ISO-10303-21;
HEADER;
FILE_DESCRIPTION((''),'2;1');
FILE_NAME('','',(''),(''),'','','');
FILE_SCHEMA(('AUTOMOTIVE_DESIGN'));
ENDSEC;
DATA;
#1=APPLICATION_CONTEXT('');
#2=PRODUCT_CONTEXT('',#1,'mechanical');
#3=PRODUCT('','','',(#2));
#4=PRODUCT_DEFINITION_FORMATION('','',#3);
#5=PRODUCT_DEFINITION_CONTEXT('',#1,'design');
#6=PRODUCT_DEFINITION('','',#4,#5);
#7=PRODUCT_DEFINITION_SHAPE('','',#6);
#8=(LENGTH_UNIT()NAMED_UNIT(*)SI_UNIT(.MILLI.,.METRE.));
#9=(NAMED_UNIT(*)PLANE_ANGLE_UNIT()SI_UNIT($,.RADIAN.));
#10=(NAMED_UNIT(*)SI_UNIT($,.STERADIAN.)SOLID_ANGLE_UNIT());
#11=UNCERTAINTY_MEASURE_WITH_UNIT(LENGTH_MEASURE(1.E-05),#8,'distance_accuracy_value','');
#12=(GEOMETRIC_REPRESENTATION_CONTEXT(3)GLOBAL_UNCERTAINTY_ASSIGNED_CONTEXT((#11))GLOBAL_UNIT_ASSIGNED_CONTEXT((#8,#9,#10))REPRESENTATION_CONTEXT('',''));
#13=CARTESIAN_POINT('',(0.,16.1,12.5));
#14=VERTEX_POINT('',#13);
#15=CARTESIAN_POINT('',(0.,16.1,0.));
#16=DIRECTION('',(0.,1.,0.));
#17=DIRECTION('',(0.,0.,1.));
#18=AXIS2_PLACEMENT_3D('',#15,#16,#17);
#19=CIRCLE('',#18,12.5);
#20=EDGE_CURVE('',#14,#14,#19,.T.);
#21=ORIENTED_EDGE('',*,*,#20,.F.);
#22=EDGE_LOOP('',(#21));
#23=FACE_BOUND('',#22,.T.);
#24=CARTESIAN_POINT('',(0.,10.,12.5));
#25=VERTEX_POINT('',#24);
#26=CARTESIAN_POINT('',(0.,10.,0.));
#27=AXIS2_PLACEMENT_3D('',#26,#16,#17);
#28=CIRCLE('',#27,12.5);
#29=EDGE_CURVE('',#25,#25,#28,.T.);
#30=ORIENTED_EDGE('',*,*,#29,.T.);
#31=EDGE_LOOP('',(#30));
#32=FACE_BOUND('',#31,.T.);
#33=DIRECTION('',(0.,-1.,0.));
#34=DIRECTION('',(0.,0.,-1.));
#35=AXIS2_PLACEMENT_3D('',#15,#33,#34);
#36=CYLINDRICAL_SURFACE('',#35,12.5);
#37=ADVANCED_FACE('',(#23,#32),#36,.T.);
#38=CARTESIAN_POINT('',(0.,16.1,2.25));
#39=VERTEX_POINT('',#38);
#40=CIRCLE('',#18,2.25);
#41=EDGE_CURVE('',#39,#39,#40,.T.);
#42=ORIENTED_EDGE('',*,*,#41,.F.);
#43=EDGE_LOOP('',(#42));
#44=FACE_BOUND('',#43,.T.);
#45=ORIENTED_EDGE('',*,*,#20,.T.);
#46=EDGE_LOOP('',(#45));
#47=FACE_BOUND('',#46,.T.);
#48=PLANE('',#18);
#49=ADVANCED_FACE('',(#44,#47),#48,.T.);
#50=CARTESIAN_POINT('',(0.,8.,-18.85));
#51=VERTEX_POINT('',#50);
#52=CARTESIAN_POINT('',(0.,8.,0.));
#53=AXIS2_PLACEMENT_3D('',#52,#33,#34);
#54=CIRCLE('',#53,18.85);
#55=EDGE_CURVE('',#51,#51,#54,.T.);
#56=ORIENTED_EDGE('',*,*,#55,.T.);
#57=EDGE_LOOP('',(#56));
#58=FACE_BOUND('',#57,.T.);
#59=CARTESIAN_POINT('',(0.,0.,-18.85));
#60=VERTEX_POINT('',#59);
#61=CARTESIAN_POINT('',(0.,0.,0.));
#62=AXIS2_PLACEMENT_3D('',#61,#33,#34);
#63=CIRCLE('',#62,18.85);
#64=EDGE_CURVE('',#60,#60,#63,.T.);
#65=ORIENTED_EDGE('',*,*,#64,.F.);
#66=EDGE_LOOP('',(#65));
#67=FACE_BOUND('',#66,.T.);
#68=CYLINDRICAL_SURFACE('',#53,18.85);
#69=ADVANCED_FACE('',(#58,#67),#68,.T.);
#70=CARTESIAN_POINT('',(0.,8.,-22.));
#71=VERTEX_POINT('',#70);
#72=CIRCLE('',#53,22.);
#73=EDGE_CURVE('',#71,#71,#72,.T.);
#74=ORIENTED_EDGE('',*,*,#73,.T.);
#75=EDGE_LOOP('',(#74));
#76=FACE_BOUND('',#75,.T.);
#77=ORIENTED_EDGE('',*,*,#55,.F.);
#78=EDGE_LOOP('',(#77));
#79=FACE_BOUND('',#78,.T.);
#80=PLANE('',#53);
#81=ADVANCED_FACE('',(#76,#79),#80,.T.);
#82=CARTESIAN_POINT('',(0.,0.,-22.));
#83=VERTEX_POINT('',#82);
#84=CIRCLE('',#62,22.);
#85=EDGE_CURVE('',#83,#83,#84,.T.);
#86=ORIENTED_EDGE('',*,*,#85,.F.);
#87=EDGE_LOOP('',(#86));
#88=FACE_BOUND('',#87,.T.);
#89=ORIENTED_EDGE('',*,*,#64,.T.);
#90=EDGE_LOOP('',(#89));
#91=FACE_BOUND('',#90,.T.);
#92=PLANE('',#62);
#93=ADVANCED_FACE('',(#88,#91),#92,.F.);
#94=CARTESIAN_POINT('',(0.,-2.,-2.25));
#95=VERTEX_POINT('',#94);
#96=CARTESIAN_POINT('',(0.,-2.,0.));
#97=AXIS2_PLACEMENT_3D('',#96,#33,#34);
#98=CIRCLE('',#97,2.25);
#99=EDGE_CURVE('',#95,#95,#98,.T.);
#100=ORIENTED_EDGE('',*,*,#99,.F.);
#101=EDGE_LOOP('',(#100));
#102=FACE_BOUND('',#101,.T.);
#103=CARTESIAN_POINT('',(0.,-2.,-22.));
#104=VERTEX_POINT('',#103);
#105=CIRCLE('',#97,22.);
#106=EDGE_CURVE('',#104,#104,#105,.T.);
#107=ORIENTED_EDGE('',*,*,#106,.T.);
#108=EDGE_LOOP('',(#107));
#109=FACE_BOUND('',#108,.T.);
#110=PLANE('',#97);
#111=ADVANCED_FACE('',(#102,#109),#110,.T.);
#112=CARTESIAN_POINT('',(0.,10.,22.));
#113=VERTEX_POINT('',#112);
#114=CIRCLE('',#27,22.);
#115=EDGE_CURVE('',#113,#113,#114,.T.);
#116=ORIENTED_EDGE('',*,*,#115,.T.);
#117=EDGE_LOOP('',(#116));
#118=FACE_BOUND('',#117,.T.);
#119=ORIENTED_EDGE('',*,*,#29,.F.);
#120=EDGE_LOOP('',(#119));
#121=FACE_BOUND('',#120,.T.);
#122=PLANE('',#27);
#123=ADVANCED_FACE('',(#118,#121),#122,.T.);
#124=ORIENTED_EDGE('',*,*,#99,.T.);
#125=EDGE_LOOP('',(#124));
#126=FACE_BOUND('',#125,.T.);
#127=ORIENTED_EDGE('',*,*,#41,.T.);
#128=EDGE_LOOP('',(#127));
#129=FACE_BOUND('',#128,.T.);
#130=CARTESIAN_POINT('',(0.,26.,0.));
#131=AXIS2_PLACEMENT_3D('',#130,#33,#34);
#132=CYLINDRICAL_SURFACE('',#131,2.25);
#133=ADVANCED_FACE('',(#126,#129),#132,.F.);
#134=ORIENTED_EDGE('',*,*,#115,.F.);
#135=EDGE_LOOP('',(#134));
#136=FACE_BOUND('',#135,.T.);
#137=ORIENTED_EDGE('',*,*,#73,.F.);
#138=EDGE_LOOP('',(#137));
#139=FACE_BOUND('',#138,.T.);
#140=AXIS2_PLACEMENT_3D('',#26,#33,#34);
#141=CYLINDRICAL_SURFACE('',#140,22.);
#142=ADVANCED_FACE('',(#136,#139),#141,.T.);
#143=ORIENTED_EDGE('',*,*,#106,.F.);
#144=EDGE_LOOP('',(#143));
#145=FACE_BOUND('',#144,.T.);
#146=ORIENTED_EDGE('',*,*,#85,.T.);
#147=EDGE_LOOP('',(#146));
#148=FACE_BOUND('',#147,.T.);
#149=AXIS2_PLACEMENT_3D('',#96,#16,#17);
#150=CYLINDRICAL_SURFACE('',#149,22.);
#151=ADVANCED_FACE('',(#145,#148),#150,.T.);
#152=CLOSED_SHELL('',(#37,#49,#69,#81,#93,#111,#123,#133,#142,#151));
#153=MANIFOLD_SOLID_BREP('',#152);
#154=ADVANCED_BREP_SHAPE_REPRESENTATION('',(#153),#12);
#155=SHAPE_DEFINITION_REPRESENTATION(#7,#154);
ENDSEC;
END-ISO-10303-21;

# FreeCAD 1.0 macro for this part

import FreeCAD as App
import Part
import Sketcher
from FreeCAD import Vector

doc = App.newDocument("Part")
body = doc.addObject("PartDesign::Body", "Body")

# Sketch on XZ plane
sketch1 = body.newObject("Sketcher::SketchObject", "Sketch")
sketch1.AttachmentSupport = (doc.getObject("XZ_Plane"), [""])
sketch1.MapMode = "FlatFace"
sketch1.addGeometry(Part.Circle(Vector(0, 0, 0), Vector(0, 0, 1), 22), False)
sketch1.addConstraint([
    Sketcher.Constraint("Coincident", 0, 3, -1, 1),
    Sketcher.Constraint("Diameter", 0, 44.0),
])
pad1 = body.newObject("PartDesign::Pad", "Pad")
pad1.Profile = sketch1
pad1.Length = 10
pad1.Reversed = True

# Sketch on XZ plane
sketch2 = body.newObject("Sketcher::SketchObject", "Sketch001")
sketch2.AttachmentSupport = (doc.getObject("XZ_Plane"), [""])
sketch2.MapMode = "FlatFace"
sketch2.AttachmentOffset = App.Placement(Vector(0, 0, -10), App.Rotation())
sketch2.addGeometry(Part.Circle(Vector(0, 0, 0), Vector(0, 0, 1), 12), False)
sketch2.addConstraint([
    Sketcher.Constraint("Coincident", 0, 3, -1, 1),
    Sketcher.Constraint("Diameter", 0, 25.0),
])
pad2 = body.newObject("PartDesign::Pad", "Pad001")
pad2.Profile = sketch2
pad2.Length = 6.1
pad2.Reversed = True

# Sketch on XZ plane
sketch3 = body.newObject("Sketcher::SketchObject", "Sketch002")
sketch3.AttachmentSupport = (doc.getObject("XZ_Plane"), [""])
sketch3.MapMode = "FlatFace"
sketch3.addGeometry([
    Part.Circle(Vector(0, 0, 0), Vector(0, 0, 1), 22),
    Part.Circle(Vector(0, 0, 0), Vector(0, 0, 1), 19),
], False)
sketch3.addConstraint([
    Sketcher.Constraint("Coincident", 0, 3, -1, 1),
    Sketcher.Constraint("Coincident", 1, 3, -1, 1),
    Sketcher.Constraint("Diameter", 0, 44.0),
    Sketcher.Constraint("Diameter", 1, 37.7),
])
pocket1 = body.newObject("PartDesign::Pocket", "Pocket")
pocket1.Profile = sketch3
pocket1.Length = 8

# Sketch on XZ plane
sketch4 = body.newObject("Sketcher::SketchObject", "Sketch003")
sketch4.AttachmentSupport = (doc.getObject("XZ_Plane"), [""])
sketch4.MapMode = "FlatFace"
sketch4.addGeometry(Part.Circle(Vector(0, 0, 0), Vector(0, 0, 1), 22), False)
sketch4.addConstraint([
    Sketcher.Constraint("Coincident", 0, 3, -1, 1),
    Sketcher.Constraint("Diameter", 0, 44.0),
])
pad3 = body.newObject("PartDesign::Pad", "Pad002")
pad3.Profile = sketch4
pad3.Length = 2

# Sketch on XZ plane
sketch5 = body.newObject("Sketcher::SketchObject", "Sketch004")
sketch5.AttachmentSupport = (doc.getObject("XZ_Plane"), [""])
sketch5.MapMode = "FlatFace"
sketch5.AttachmentOffset = App.Placement(Vector(0, 0, 2), App.Rotation())
sketch5.addGeometry(Part.Circle(Vector(0, 0, 0), Vector(0, 0, 1), 2.2), False)
sketch5.addConstraint([
    Sketcher.Constraint("Coincident", 0, 3, -1, 1),
    Sketcher.Constraint("Diameter", 0, 4.5),
])
pocket2 = body.newObject("PartDesign::Pocket", "Pocket001")
pocket2.Profile = sketch5
pocket2.Length = 28

doc.recompute()
